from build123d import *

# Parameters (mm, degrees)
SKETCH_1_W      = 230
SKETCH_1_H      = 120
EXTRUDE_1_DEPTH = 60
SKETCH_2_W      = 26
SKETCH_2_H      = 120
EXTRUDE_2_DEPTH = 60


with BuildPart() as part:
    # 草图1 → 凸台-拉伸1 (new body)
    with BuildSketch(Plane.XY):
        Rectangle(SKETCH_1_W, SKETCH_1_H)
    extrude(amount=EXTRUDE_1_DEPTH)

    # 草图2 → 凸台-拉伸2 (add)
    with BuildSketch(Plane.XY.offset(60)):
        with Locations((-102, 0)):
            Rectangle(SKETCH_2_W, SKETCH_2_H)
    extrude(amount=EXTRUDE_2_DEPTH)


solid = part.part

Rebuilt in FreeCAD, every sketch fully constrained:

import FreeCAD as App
import Part
import Sketcher
from FreeCAD import Vector
Q = App.Units.Quantity

doc = App.newDocument("Part")
body = doc.addObject("PartDesign::Body", "Body")

# Sketch on XY plane
sketch1 = doc.addObject("Sketcher::SketchObject", "Sketch")
body.addObject(sketch1)
sketch1.AttachmentSupport = (doc.XY_Plane, [""])
sketch1.MapMode = "FlatFace"
sketch1.addGeometry([
    Part.LineSegment(Vector(-115, 60, 0), Vector(-115, -60, 0)),
    Part.LineSegment(Vector(-115, -60, 0), Vector(115, -60, 0)),
    Part.LineSegment(Vector(115, -60, 0), Vector(115, 60, 0)),
    Part.LineSegment(Vector(115, 60, 0), Vector(-115, 60, 0)),
], False)
sketch1.addConstraint([
    Sketcher.Constraint("Coincident", 0, 2, 1, 1),
    Sketcher.Constraint("Coincident", 1, 2, 2, 1),
    Sketcher.Constraint("Coincident", 2, 2, 3, 1),
    Sketcher.Constraint("Coincident", 3, 2, 0, 1),
    Sketcher.Constraint("Vertical", 0),
    Sketcher.Constraint("Horizontal", 1),
    Sketcher.Constraint("Vertical", 2),
    Sketcher.Constraint("Horizontal", 3),
    Sketcher.Constraint("Symmetric", 0, 2, 2, 2, -1, 1),
    Sketcher.Constraint("DistanceX", 1, 1, 1, 2, Q("230 mm")),
    Sketcher.Constraint("DistanceY", 0, 2, 0, 1, Q("120 mm")),
])
pad1 = doc.addObject("PartDesign::Pad", "Pad")
body.addObject(pad1)
pad1.Profile = sketch1
pad1.Length = 60

# Sketch on XY plane
sketch2 = doc.addObject("Sketcher::SketchObject", "Sketch001")
body.addObject(sketch2)
sketch2.AttachmentSupport = (doc.XY_Plane, [""])
sketch2.MapMode = "FlatFace"
sketch2.AttachmentOffset = App.Placement(Vector(0, 0, 60), App.Rotation())
sketch2.addGeometry([
    Part.LineSegment(Vector(-115, 60, 0), Vector(-115, -60, 0)),
    Part.LineSegment(Vector(-115, -60, 0), Vector(-89, -60, 0)),
    Part.LineSegment(Vector(-89, -60, 0), Vector(-89, 60, 0)),
    Part.LineSegment(Vector(-89, 60, 0), Vector(-115, 60, 0)),
], False)
sketch2.addConstraint([
    Sketcher.Constraint("Coincident", 0, 2, 1, 1),
    Sketcher.Constraint("Coincident", 1, 2, 2, 1),
    Sketcher.Constraint("Coincident", 2, 2, 3, 1),
    Sketcher.Constraint("Coincident", 3, 2, 0, 1),
    Sketcher.Constraint("Vertical", 0),
    Sketcher.Constraint("Horizontal", 1),
    Sketcher.Constraint("Vertical", 2),
    Sketcher.Constraint("Horizontal", 3),
    Sketcher.Constraint("DistanceX", 1, 1, 1, 2, Q("26 mm")),
    Sketcher.Constraint("DistanceY", 0, 2, 0, 1, Q("120 mm")),
    Sketcher.Constraint("DistanceX", 0, 2, -1, 1, Q("115 mm")),
    Sketcher.Constraint("DistanceY", 0, 2, -1, 1, Q("60 mm")),
])
pad2 = doc.addObject("PartDesign::Pad", "Pad001")
body.addObject(pad2)
pad2.Profile = sketch2
pad2.Length = 60

doc.recompute()
